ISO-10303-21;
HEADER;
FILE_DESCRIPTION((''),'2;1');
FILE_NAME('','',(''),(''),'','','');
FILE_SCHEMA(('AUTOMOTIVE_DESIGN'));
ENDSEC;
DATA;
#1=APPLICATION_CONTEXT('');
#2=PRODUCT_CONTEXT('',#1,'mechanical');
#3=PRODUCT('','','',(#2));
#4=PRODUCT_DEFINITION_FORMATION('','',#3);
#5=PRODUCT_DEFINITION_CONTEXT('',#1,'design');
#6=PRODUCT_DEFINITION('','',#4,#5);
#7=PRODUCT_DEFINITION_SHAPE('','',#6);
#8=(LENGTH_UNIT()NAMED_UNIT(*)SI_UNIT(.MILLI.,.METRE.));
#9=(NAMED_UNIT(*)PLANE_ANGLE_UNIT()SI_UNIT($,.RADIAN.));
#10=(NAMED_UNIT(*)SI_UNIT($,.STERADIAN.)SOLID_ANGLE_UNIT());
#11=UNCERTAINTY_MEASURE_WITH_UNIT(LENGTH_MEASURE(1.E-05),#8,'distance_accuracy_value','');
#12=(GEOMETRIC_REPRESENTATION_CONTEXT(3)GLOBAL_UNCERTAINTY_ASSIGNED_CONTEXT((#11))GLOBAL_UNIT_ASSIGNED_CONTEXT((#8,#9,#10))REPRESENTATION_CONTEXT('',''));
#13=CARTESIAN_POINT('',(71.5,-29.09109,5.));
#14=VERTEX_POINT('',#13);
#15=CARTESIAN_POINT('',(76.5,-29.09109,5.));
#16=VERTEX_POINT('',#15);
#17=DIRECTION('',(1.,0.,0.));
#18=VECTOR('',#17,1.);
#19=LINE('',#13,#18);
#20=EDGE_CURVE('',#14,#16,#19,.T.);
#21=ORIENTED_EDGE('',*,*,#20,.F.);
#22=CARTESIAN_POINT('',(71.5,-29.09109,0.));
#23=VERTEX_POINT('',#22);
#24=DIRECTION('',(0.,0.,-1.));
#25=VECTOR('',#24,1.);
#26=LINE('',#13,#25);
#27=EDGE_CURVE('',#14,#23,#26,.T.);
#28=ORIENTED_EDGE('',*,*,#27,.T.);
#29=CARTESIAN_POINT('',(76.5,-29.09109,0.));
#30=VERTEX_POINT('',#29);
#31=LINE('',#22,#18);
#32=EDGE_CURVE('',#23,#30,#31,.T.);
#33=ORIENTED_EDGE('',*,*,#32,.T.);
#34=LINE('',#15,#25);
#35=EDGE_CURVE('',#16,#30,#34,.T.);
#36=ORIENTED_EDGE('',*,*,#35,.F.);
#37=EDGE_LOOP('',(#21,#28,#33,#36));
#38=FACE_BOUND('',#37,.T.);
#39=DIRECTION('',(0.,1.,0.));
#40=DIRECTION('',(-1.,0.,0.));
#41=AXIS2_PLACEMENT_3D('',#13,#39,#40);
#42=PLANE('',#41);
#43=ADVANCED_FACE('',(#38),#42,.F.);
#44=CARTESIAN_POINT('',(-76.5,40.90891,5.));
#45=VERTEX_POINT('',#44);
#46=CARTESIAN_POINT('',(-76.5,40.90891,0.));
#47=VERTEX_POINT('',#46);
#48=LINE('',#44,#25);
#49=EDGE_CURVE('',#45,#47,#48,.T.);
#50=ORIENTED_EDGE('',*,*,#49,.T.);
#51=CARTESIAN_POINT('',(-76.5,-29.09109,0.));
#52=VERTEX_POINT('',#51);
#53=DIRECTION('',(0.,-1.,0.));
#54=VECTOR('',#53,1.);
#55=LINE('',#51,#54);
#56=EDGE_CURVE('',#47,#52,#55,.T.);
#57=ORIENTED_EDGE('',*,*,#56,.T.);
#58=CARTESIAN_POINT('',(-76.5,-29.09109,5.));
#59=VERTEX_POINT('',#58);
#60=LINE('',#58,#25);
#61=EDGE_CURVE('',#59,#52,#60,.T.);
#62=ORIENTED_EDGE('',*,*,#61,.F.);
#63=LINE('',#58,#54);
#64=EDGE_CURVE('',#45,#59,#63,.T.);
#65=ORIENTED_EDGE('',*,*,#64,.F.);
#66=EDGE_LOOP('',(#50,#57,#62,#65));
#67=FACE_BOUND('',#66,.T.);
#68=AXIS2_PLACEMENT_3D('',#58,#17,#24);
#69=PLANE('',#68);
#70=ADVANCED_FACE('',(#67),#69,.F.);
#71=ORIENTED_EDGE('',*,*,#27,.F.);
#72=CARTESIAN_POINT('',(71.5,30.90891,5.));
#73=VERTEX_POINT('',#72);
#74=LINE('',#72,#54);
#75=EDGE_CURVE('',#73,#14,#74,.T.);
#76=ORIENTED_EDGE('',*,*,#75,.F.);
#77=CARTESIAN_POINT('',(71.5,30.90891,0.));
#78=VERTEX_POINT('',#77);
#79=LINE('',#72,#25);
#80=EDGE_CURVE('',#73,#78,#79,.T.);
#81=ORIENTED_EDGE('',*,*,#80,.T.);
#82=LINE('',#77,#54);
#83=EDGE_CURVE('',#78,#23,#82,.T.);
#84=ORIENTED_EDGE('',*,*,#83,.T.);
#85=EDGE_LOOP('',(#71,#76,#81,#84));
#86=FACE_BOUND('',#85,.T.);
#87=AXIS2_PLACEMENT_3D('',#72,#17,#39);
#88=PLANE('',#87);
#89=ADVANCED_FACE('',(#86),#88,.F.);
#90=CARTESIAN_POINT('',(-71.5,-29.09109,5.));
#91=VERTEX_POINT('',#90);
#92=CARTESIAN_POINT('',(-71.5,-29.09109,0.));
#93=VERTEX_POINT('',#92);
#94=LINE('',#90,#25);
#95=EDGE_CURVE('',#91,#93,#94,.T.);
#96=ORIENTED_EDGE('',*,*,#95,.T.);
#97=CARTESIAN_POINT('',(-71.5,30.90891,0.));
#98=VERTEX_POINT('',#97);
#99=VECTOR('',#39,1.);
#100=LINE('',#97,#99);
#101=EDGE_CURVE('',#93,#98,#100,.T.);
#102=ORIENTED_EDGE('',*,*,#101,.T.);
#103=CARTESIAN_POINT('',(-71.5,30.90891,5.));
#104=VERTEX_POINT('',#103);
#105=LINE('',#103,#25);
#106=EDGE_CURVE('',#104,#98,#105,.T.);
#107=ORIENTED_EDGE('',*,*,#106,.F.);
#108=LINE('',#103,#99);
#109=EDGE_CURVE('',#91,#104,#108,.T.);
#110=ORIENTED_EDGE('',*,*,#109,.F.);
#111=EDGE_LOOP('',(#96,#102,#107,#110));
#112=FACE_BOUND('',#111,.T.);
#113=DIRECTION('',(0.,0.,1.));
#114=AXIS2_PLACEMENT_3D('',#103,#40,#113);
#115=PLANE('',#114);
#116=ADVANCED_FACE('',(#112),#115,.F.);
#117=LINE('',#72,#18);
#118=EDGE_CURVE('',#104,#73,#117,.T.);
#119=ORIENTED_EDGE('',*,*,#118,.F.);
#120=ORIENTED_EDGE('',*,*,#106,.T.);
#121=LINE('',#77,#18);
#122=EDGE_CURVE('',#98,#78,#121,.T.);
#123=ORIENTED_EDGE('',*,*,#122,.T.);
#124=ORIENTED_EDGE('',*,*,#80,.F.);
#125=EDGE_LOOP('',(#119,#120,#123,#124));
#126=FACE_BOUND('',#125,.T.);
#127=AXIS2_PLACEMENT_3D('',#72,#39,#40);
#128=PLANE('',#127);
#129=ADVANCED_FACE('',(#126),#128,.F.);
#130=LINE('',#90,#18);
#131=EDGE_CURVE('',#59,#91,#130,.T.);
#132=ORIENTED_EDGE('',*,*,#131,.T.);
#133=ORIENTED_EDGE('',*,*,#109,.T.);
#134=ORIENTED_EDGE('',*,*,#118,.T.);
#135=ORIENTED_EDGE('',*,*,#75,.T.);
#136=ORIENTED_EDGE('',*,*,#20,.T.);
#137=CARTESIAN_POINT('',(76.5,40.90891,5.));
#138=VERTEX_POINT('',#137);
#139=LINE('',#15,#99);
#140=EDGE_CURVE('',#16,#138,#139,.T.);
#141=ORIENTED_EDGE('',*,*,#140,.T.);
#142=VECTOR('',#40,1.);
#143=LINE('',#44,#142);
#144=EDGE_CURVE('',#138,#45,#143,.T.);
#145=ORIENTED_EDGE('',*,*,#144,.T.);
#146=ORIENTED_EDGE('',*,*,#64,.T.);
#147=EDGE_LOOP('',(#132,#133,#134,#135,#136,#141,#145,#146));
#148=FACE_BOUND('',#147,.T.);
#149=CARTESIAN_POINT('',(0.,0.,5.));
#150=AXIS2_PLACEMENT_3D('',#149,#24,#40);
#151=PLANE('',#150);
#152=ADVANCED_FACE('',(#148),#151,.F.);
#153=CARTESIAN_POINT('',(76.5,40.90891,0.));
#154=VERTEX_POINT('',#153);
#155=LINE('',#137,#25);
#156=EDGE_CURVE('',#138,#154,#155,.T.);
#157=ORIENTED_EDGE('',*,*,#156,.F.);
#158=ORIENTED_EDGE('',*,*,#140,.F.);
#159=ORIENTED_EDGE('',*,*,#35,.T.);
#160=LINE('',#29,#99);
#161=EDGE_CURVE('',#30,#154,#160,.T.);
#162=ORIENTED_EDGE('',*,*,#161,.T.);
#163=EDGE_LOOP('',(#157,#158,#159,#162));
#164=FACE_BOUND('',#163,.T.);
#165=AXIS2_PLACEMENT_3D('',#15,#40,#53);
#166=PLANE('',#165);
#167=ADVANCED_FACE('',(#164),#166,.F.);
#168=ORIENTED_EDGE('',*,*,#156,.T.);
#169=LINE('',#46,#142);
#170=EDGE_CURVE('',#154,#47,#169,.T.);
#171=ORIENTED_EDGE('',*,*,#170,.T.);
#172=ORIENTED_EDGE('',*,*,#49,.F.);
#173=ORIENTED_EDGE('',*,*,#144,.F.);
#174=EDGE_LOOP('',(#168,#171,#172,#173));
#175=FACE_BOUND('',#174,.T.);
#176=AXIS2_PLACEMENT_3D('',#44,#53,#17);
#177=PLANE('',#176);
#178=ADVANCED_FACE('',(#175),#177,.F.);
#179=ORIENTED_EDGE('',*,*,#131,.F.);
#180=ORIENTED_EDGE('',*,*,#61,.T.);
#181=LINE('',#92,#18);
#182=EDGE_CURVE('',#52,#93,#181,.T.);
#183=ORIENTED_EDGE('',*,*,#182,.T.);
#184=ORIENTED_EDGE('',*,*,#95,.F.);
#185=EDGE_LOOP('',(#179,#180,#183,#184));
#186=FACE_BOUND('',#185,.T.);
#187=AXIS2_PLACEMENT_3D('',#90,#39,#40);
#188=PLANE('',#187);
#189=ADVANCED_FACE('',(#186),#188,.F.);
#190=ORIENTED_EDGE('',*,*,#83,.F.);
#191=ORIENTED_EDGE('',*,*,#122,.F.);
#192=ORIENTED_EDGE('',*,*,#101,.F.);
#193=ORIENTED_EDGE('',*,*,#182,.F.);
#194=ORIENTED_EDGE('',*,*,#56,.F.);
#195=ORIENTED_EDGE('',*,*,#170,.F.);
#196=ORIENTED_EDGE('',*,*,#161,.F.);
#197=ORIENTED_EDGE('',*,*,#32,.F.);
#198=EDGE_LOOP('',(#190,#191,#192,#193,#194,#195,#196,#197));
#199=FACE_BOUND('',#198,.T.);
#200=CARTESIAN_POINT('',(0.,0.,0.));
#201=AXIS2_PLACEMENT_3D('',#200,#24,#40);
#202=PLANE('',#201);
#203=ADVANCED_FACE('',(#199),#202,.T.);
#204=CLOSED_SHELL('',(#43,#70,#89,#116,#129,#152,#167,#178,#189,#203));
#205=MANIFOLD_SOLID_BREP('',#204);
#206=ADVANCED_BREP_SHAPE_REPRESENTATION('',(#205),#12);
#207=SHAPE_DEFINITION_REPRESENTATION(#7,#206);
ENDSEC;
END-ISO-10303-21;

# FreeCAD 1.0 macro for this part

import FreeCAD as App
import Part
import Sketcher


def add_polygon(sketch, points):
    """Adds a closed chain of lines whose ends are joined by coincident constraints."""
    first, n = sketch.GeometryCount, len(points)
    for a, b in zip(points, points[1:] + points[:1]):
        sketch.addGeometry(Part.LineSegment(App.Vector(*a, 0), App.Vector(*b, 0)), False)
    for i in range(n):
        sketch.addConstraint(Sketcher.Constraint("Coincident", first + i, 2, first + (i + 1) % n, 1))

doc = App.newDocument("Part")
body = doc.addObject("PartDesign::Body", "Body")

sketch1 = doc.addObject("Sketcher::SketchObject", "Sketch")
body.addObject(sketch1)
sketch1.AttachmentSupport = (doc.XY_Plane, [""])
sketch1.MapMode = "FlatFace"
add_polygon(sketch1, [(-72, 31), (72, 31), (72, -29), (76, -29), (76, 41), (-76, 41), (-76, -29), (-72, -29)])
sketch1.addConstraint([
    Sketcher.Constraint("Horizontal", 0),
    Sketcher.Constraint("Vertical", 1),
    Sketcher.Constraint("Horizontal", 2),
    Sketcher.Constraint("Vertical", 3),
    Sketcher.Constraint("Horizontal", 4),
    Sketcher.Constraint("Vertical", 5),
    Sketcher.Constraint("Horizontal", 6),
    Sketcher.Constraint("Vertical", 7),
    Sketcher.Constraint("Symmetric", 2, 2, 5, 2, -2),
    Sketcher.Constraint("Equal", 2, 6),
    Sketcher.Constraint("DistanceX", 0, 1, 0, 2, 143.0),
    Sketcher.Constraint("DistanceX", 2, 1, 2, 2, 5.0),
    Sketcher.Constraint("DistanceY", 1, 2, 1, 1, 60.0),
    Sketcher.Constraint("DistanceY", 3, 1, 3, 2, 70.0),
    Sketcher.Constraint("DistanceY", -1, 1, 0, 2, 30.90891),
])
pad1 = doc.addObject("PartDesign::Pad", "Pad")
body.addObject(pad1)
pad1.Profile = sketch1
pad1.Length = 5

doc.recompute()
